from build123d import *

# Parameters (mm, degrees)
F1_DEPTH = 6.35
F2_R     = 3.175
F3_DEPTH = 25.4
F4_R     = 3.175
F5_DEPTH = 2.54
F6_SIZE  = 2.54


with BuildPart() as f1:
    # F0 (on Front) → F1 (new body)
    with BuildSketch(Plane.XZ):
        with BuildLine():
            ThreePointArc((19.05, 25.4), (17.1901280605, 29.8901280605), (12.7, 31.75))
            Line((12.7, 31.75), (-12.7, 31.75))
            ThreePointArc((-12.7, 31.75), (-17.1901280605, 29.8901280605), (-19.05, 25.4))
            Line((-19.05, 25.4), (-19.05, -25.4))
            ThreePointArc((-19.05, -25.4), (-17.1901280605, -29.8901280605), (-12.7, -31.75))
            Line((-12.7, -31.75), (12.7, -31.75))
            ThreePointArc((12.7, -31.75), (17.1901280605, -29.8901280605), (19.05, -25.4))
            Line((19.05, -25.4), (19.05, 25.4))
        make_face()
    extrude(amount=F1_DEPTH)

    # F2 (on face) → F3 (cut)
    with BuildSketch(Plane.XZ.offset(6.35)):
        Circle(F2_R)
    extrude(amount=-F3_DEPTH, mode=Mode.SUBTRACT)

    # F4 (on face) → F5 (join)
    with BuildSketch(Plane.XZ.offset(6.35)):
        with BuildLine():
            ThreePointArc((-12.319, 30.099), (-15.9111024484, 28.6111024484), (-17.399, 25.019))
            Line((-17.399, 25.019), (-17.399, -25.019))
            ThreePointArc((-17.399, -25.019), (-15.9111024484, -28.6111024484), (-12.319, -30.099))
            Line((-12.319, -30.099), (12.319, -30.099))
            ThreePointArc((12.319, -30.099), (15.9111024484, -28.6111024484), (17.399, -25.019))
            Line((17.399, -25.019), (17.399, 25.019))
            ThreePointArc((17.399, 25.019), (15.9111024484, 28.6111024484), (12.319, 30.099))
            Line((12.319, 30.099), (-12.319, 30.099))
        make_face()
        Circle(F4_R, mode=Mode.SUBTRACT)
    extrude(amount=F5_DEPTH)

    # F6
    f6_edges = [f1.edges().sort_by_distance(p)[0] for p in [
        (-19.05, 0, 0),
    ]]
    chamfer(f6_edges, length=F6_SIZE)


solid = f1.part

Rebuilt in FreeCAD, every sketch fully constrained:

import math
import FreeCAD as App
import Part
import Sketcher
Q = App.Units.Quantity


def edges_at(feature, points):
    """Names of the edges that pass closest to the given points."""
    edges = feature.Shape.Edges
    near = lambda p: min(range(len(edges)), key=lambda i: edges[i].distToShape(Part.Vertex(*p))[0])
    return sorted({f"Edge{near(p) + 1}" for p in points})

doc = App.newDocument("Part")
body = doc.addObject("PartDesign::Body", "Body")

sketch1 = doc.addObject("Sketcher::SketchObject", "Sketch")
body.addObject(sketch1)
sketch1.AttachmentSupport = (doc.XZ_Plane, [""])
sketch1.MapMode = "FlatFace"
sketch1.addGeometry(Part.ArcOfCircle(Part.Circle(App.Vector(13, 25, 0), App.Vector(0, 0, 1), 6), math.radians(0), math.radians(90)), False)
sketch1.addGeometry(Part.LineSegment(App.Vector(13, 32, 0), App.Vector(-13, 32, 0)), False)
sketch1.addGeometry(Part.ArcOfCircle(Part.Circle(App.Vector(-13, 25, 0), App.Vector(0, 0, 1), 6), math.radians(90), math.radians(180)), False)
sketch1.addGeometry(Part.LineSegment(App.Vector(-19, 25, 0), App.Vector(-19, -25, 0)), False)
sketch1.addGeometry(Part.ArcOfCircle(Part.Circle(App.Vector(-13, -25, 0), App.Vector(0, 0, 1), 6), math.radians(180), math.radians(270)), False)
sketch1.addGeometry(Part.LineSegment(App.Vector(-13, -32, 0), App.Vector(13, -32, 0)), False)
sketch1.addGeometry(Part.ArcOfCircle(Part.Circle(App.Vector(13, -25, 0), App.Vector(0, 0, 1), 6), math.radians(-90), math.radians(0)), False)
sketch1.addGeometry(Part.LineSegment(App.Vector(19, -25, 0), App.Vector(19, 25, 0)), False)
sketch1.addConstraint(Sketcher.Constraint("Tangent", 0, 2, 1, 1))
sketch1.addConstraint(Sketcher.Constraint("Tangent", 1, 2, 2, 1))
sketch1.addConstraint(Sketcher.Constraint("Tangent", 2, 2, 3, 1))
sketch1.addConstraint(Sketcher.Constraint("Tangent", 3, 2, 4, 1))
sketch1.addConstraint(Sketcher.Constraint("Tangent", 4, 2, 5, 1))
sketch1.addConstraint(Sketcher.Constraint("Tangent", 5, 2, 6, 1))
sketch1.addConstraint(Sketcher.Constraint("Tangent", 6, 2, 7, 1))
sketch1.addConstraint(Sketcher.Constraint("Tangent", 7, 2, 0, 1))
sketch1.addConstraint(Sketcher.Constraint("Horizontal", 1))
sketch1.addConstraint(Sketcher.Constraint("Vertical", 3))
sketch1.addConstraint(Sketcher.Constraint("Horizontal", 5))
sketch1.addConstraint(Sketcher.Constraint("Vertical", 7))
sketch1.addConstraint(Sketcher.Constraint("Equal", 0, 2))
sketch1.addConstraint(Sketcher.Constraint("Equal", 2, 4))
sketch1.addConstraint(Sketcher.Constraint("Equal", 4, 6))
sketch1.addConstraint(Sketcher.Constraint("Symmetric", 0, 3, 4, 3, -1, 1))
sketch1.addConstraint(Sketcher.Constraint("DistanceX", 1, 2, 1, 1, Q("1 in")))
sketch1.addConstraint(Sketcher.Constraint("DistanceY", 3, 2, 3, 1, Q("2 in")))
sketch1.addConstraint(Sketcher.Constraint("Radius", 0, Q("0.25 in")))
pad1 = doc.addObject("PartDesign::Pad", "Pad")
body.addObject(pad1)
pad1.Profile = sketch1
pad1.Length = Q("0.25 in")

sketch2 = doc.addObject("Sketcher::SketchObject", "Sketch001")
body.addObject(sketch2)
sketch2.AttachmentSupport = (doc.XZ_Plane, [""])
sketch2.MapMode = "FlatFace"
sketch2.AttachmentOffset = App.Placement(App.Vector(0, 0, 0.25 * 25.4), App.Rotation())
sketch2.addGeometry(Part.Circle(App.Vector(0, 0, 0), App.Vector(0, 0, 1), 3.2), False)
sketch2.addConstraint(Sketcher.Constraint("Coincident", 0, 3, -1, 1))
sketch2.addConstraint(Sketcher.Constraint("Diameter", 0, Q("0.25 in")))
pocket1 = doc.addObject("PartDesign::Pocket", "Pocket")
body.addObject(pocket1)
pocket1.Profile = sketch2
pocket1.Length = Q("1 in")

sketch3 = doc.addObject("Sketcher::SketchObject", "Sketch002")
body.addObject(sketch3)
sketch3.AttachmentSupport = (doc.XZ_Plane, [""])
sketch3.MapMode = "FlatFace"
sketch3.AttachmentOffset = App.Placement(App.Vector(0, 0, 0.25 * 25.4), App.Rotation())
sketch3.addGeometry(Part.ArcOfCircle(Part.Circle(App.Vector(-12.3, 25, 0), App.Vector(0, 0, 1), 5.1), math.radians(90), math.radians(180)), False)
sketch3.addGeometry(Part.LineSegment(App.Vector(-17.4, 25, 0), App.Vector(-17.4, -25, 0)), False)
sketch3.addGeometry(Part.ArcOfCircle(Part.Circle(App.Vector(-12.3, -25, 0), App.Vector(0, 0, 1), 5.1), math.radians(180), math.radians(270)), False)
sketch3.addGeometry(Part.LineSegment(App.Vector(-12.3, -30.1, 0), App.Vector(12.3, -30.1, 0)), False)
sketch3.addGeometry(Part.ArcOfCircle(Part.Circle(App.Vector(12.3, -25, 0), App.Vector(0, 0, 1), 5.1), math.radians(-90), math.radians(0)), False)
sketch3.addGeometry(Part.LineSegment(App.Vector(17.4, -25, 0), App.Vector(17.4, 25, 0)), False)
sketch3.addGeometry(Part.ArcOfCircle(Part.Circle(App.Vector(12.3, 25, 0), App.Vector(0, 0, 1), 5.1), math.radians(0), math.radians(90)), False)
sketch3.addGeometry(Part.LineSegment(App.Vector(12.3, 30.1, 0), App.Vector(-12.3, 30.1, 0)), False)
sketch3.addGeometry(Part.Circle(App.Vector(0, 0, 0), App.Vector(0, 0, 1), 3.2), False)
sketch3.addConstraint(Sketcher.Constraint("Tangent", 0, 2, 1, 1))
sketch3.addConstraint(Sketcher.Constraint("Tangent", 1, 2, 2, 1))
sketch3.addConstraint(Sketcher.Constraint("Tangent", 2, 2, 3, 1))
sketch3.addConstraint(Sketcher.Constraint("Tangent", 3, 2, 4, 1))
sketch3.addConstraint(Sketcher.Constraint("Tangent", 4, 2, 5, 1))
sketch3.addConstraint(Sketcher.Constraint("Tangent", 5, 2, 6, 1))
sketch3.addConstraint(Sketcher.Constraint("Tangent", 6, 2, 7, 1))
sketch3.addConstraint(Sketcher.Constraint("Tangent", 7, 2, 0, 1))
sketch3.addConstraint(Sketcher.Constraint("Vertical", 1))
sketch3.addConstraint(Sketcher.Constraint("Horizontal", 3))
sketch3.addConstraint(Sketcher.Constraint("Vertical", 5))
sketch3.addConstraint(Sketcher.Constraint("Horizontal", 7))
sketch3.addConstraint(Sketcher.Constraint("Coincident", 8, 3, -1, 1))
sketch3.addConstraint(Sketcher.Constraint("Equal", 0, 2))
sketch3.addConstraint(Sketcher.Constraint("Equal", 2, 4))
sketch3.addConstraint(Sketcher.Constraint("Equal", 4, 6))
sketch3.addConstraint(Sketcher.Constraint("Symmetric", 0, 3, 4, 3, -1, 1))
sketch3.addConstraint(Sketcher.Constraint("Radius", 0, Q("0.2 in")))
sketch3.addConstraint(Sketcher.Constraint("Diameter", 8, Q("0.25 in")))
sketch3.addConstraint(Sketcher.Constraint("DistanceX", 3, 1, 3, 2, Q("0.97 in")))
sketch3.addConstraint(Sketcher.Constraint("DistanceY", 1, 2, 1, 1, Q("1.97 in")))
pad2 = doc.addObject("PartDesign::Pad", "Pad001")
body.addObject(pad2)
pad2.Profile = sketch3
pad2.Length = Q("0.1 in")
doc.recompute()

chamfer = doc.addObject("PartDesign::Chamfer", "Chamfer")
body.addObject(chamfer)
chamfer.Base = (pad2, edges_at(pad2, [(-19.05, 0, 0)]))
chamfer.Size = Q("0.1 in")

doc.recompute()
